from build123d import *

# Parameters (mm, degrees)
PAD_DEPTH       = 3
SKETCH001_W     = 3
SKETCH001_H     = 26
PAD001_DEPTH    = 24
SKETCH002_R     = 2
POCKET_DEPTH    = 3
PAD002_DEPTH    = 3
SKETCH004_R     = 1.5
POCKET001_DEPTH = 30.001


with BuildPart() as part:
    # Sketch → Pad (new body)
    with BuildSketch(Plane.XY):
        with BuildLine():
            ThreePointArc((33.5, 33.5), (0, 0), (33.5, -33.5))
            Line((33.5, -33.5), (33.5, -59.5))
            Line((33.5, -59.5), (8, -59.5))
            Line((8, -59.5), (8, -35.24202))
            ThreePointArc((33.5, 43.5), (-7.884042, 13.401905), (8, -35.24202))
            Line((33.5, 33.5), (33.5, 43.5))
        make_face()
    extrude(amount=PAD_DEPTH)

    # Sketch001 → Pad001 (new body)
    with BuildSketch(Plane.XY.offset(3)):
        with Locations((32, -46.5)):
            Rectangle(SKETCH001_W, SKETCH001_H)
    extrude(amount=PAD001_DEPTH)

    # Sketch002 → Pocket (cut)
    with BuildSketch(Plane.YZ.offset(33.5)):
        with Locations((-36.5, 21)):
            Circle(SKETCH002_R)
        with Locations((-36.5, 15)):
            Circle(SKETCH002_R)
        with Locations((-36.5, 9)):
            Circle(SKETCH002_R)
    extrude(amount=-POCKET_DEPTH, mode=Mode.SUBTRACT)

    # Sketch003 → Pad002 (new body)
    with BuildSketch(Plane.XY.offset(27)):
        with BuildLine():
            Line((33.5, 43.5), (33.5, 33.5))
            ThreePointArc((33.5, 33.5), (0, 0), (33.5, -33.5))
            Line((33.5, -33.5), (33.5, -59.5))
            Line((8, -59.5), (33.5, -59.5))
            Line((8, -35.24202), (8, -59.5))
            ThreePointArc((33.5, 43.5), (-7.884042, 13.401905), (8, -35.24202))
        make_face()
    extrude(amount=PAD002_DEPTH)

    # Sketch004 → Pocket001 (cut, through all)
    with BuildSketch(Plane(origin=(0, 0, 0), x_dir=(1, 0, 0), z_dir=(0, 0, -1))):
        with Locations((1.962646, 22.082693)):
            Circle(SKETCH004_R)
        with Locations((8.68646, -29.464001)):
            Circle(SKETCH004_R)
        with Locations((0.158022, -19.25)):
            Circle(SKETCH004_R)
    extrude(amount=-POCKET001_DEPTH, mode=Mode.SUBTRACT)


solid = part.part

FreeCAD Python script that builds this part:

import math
import FreeCAD as App
import Part
import Sketcher

V = App.Vector

doc = App.newDocument("Part")
body = doc.addObject("PartDesign::Body", "Body")

# Sketch on XY plane
sketch1 = body.newObject("Sketcher::SketchObject", "Sketch")
sketch1.AttachmentSupport = (doc.getObject("XY_Plane"), [""])
sketch1.MapMode = "FlatFace"
sketch1.addGeometry(Part.ArcOfCircle(Part.Circle(V(34, 0, 0), V(0, 0, 1), 34), math.radians(90), math.radians(270)), False)
sketch1.addGeometry(Part.LineSegment(V(34, 34, 0), V(34, 44, 0)), False)
sketch1.addGeometry(Part.ArcOfCircle(Part.Circle(V(34, 0, 0), V(0, 0, 1), 43), math.radians(90), math.radians(234)), False)
sketch1.addGeometry(Part.LineSegment(V(8, -35, 0), V(8, -60, 0)), False)
sketch1.addGeometry(Part.LineSegment(V(8, -60, 0), V(34, -60, 0)), False)
sketch1.addGeometry(Part.LineSegment(V(34, -60, 0), V(34, -34, 0)), False)
sketch1.addConstraint(Sketcher.Constraint("Coincident", 0, 1, 1, 1))
sketch1.addConstraint(Sketcher.Constraint("Coincident", 1, 2, 2, 1))
sketch1.addConstraint(Sketcher.Constraint("Coincident", 2, 2, 3, 1))
sketch1.addConstraint(Sketcher.Constraint("Coincident", 3, 2, 4, 1))
sketch1.addConstraint(Sketcher.Constraint("Coincident", 4, 2, 5, 1))
sketch1.addConstraint(Sketcher.Constraint("Coincident", 5, 2, 0, 2))
sketch1.addConstraint(Sketcher.Constraint("Vertical", 1))
sketch1.addConstraint(Sketcher.Constraint("Vertical", 3))
sketch1.addConstraint(Sketcher.Constraint("Horizontal", 4))
sketch1.addConstraint(Sketcher.Constraint("Vertical", 5))
sketch1.addConstraint(Sketcher.Constraint("Coincident", 2, 3, 0, 3))
sketch1.addConstraint(Sketcher.Constraint("Symmetric", 0, 1, 5, 2, -1))
sketch1.addConstraint(Sketcher.Constraint("Vertical", 2, 3, 0, 1))
sketch1.addConstraint(Sketcher.Constraint("Radius", 0, 33.5))
sketch1.addConstraint(Sketcher.Constraint("Radius", 2, 43.5))
sketch1.addConstraint(Sketcher.Constraint("DistanceY", 5, 1, 5, 2, 26.0))
sketch1.addConstraint(Sketcher.Constraint("DistanceX", 4, 1, 4, 2, 25.5))
sketch1.addConstraint(Sketcher.Constraint("DistanceX", -1, 1, 2, 2, 8.0))
pad1 = body.newObject("PartDesign::Pad", "Pad")
pad1.Profile = sketch1
pad1.Length = 3

# Sketch on XY plane
sketch2 = body.newObject("Sketcher::SketchObject", "Sketch001")
sketch2.AttachmentSupport = (doc.getObject("XY_Plane"), [""])
sketch2.MapMode = "FlatFace"
sketch2.AttachmentOffset = App.Placement(V(0, 0, 3), App.Rotation())
sketch2.addGeometry(Part.LineSegment(V(30.5, -33.5, 0), V(30.5, -59.5, 0)), False)
sketch2.addGeometry(Part.LineSegment(V(30.5, -59.5, 0), V(33.5, -59.5, 0)), False)
sketch2.addGeometry(Part.LineSegment(V(33.5, -59.5, 0), V(33.5, -33.5, 0)), False)
sketch2.addGeometry(Part.LineSegment(V(33.5, -33.5, 0), V(30.5, -33.5, 0)), False)
sketch2.addConstraint(Sketcher.Constraint("Coincident", 0, 2, 1, 1))
sketch2.addConstraint(Sketcher.Constraint("Coincident", 1, 2, 2, 1))
sketch2.addConstraint(Sketcher.Constraint("Coincident", 2, 2, 3, 1))
sketch2.addConstraint(Sketcher.Constraint("Coincident", 3, 2, 0, 1))
sketch2.addConstraint(Sketcher.Constraint("Vertical", 0))
sketch2.addConstraint(Sketcher.Constraint("Horizontal", 1))
sketch2.addConstraint(Sketcher.Constraint("Vertical", 2))
sketch2.addConstraint(Sketcher.Constraint("Horizontal", 3))
sketch2.addConstraint(Sketcher.Constraint("DistanceX", 1, 1, 1, 2, 3.0))
sketch2.addConstraint(Sketcher.Constraint("DistanceY", 0, 2, 0, 1, 26.0))
sketch2.addConstraint(Sketcher.Constraint("DistanceX", -1, 1, 0, 2, 30.5))
sketch2.addConstraint(Sketcher.Constraint("DistanceY", 0, 2, -1, 1, 59.5))
pad2 = body.newObject("PartDesign::Pad", "Pad001")
pad2.Profile = sketch2
pad2.Length = 24

# Sketch on YZ plane
sketch3 = body.newObject("Sketcher::SketchObject", "Sketch002")
sketch3.AttachmentSupport = (doc.getObject("YZ_Plane"), [""])
sketch3.MapMode = "FlatFace"
sketch3.AttachmentOffset = App.Placement(V(0, 0, 33.5), App.Rotation())
sketch3.addGeometry(Part.Circle(V(-36.5, 21, 0), V(0, 0, 1), 2), False)
sketch3.addGeometry(Part.Circle(V(-36.5, 15, 0), V(0, 0, 1), 2), False)
sketch3.addGeometry(Part.Circle(V(-36.5, 9, 0), V(0, 0, 1), 2), False)
sketch3.addConstraint(Sketcher.Constraint("Equal", 0, 1))
sketch3.addConstraint(Sketcher.Constraint("Equal", 1, 2))
sketch3.addConstraint(Sketcher.Constraint("Vertical", 0, 3, 1, 3))
sketch3.addConstraint(Sketcher.Constraint("Vertical", 1, 3, 2, 3))
sketch3.addConstraint(Sketcher.Constraint("Diameter", 0, 4.0))
sketch3.addConstraint(Sketcher.Constraint("DistanceY", -1, 1, 0, 3, 21.0))
sketch3.addConstraint(Sketcher.Constraint("DistanceY", -1, 1, 1, 3, 15.0))
sketch3.addConstraint(Sketcher.Constraint("DistanceY", -1, 1, 2, 3, 9.0))
sketch3.addConstraint(Sketcher.Constraint("DistanceX", 0, 3, -1, 1, 36.5))
pocket1 = body.newObject("PartDesign::Pocket", "Pocket")
pocket1.Profile = sketch3
pocket1.Length = 3

# Sketch on XY plane
sketch4 = body.newObject("Sketcher::SketchObject", "Sketch003")
sketch4.AttachmentSupport = (doc.getObject("XY_Plane"), [""])
sketch4.MapMode = "FlatFace"
sketch4.AttachmentOffset = App.Placement(V(0, 0, 27), App.Rotation())
sketch4.addGeometry(Part.LineSegment(V(34, 34, 0), V(34, 44, 0)), False)
sketch4.addGeometry(Part.ArcOfCircle(Part.Circle(V(34, 0, 0), V(0, 0, 1), 43), math.radians(90), math.radians(234)), False)
sketch4.addGeometry(Part.LineSegment(V(8, -35, 0), V(8, -60, 0)), False)
sketch4.addGeometry(Part.LineSegment(V(8, -60, 0), V(34, -60, 0)), False)
sketch4.addGeometry(Part.LineSegment(V(34, -60, 0), V(34, -34, 0)), False)
sketch4.addGeometry(Part.ArcOfCircle(Part.Circle(V(34, 0, 0), V(0, 0, 1), 34), math.radians(90), math.radians(270)), False)
sketch4.addConstraint(Sketcher.Constraint("Coincident", 0, 2, 1, 1))
sketch4.addConstraint(Sketcher.Constraint("Coincident", 1, 2, 2, 1))
sketch4.addConstraint(Sketcher.Constraint("Coincident", 2, 2, 3, 1))
sketch4.addConstraint(Sketcher.Constraint("Coincident", 3, 2, 4, 1))
sketch4.addConstraint(Sketcher.Constraint("Coincident", 4, 2, 5, 2))
sketch4.addConstraint(Sketcher.Constraint("Coincident", 5, 1, 0, 1))
sketch4.addConstraint(Sketcher.Constraint("Vertical", 0))
sketch4.addConstraint(Sketcher.Constraint("Vertical", 2))
sketch4.addConstraint(Sketcher.Constraint("Horizontal", 3))
sketch4.addConstraint(Sketcher.Constraint("Vertical", 4))
sketch4.addConstraint(Sketcher.Constraint("Coincident", 5, 3, 1, 3))
sketch4.addConstraint(Sketcher.Constraint("Symmetric", 4, 2, 5, 1, -1))
sketch4.addConstraint(Sketcher.Constraint("Vertical", 5, 3, 0, 2))
sketch4.addConstraint(Sketcher.Constraint("Radius", 1, 43.5))
sketch4.addConstraint(Sketcher.Constraint("Radius", 5, 33.5))
sketch4.addConstraint(Sketcher.Constraint("DistanceY", 4, 1, 4, 2, 26.0))
sketch4.addConstraint(Sketcher.Constraint("DistanceX", 3, 1, 3, 2, 25.5))
sketch4.addConstraint(Sketcher.Constraint("DistanceX", -1, 1, 1, 2, 8.0))
pad3 = body.newObject("PartDesign::Pad", "Pad002")
pad3.Profile = sketch4
pad3.Length = 3

# Sketch on XY plane
sketch5 = body.newObject("Sketcher::SketchObject", "Sketch004")
sketch5.AttachmentSupport = (doc.getObject("XY_Plane"), [""])
sketch5.MapMode = "FlatFace"
sketch5.addGeometry(Part.Circle(V(2, -22.1, 0), V(0, 0, 1), 1.5), False)
sketch5.addGeometry(Part.Circle(V(8.7, 29.5, 0), V(0, 0, 1), 1.5), False)
sketch5.addGeometry(Part.Circle(V(0.2, 19.2, 0), V(0, 0, 1), 1.5), False)
sketch5.addConstraint(Sketcher.Constraint("Equal", 0, 1))
sketch5.addConstraint(Sketcher.Constraint("Equal", 1, 2))
sketch5.addConstraint(Sketcher.Constraint("Diameter", 0, 3.0))
sketch5.addConstraint(Sketcher.Constraint("DistanceY", -1, 1, 2, 3, 19.25))
sketch5.addConstraint(Sketcher.Constraint("DistanceY", -1, 1, 1, 3, 29.464001))
sketch5.addConstraint(Sketcher.Constraint("DistanceX", -1, 1, 1, 3, 8.68646))
sketch5.addConstraint(Sketcher.Constraint("DistanceX", -1, 1, 0, 3, 1.962646))
sketch5.addConstraint(Sketcher.Constraint("DistanceY", 0, 3, -1, 1, 22.082693))
sketch5.addConstraint(Sketcher.Constraint("DistanceX", -1, 1, 2, 3, 0.158022))
pocket2 = body.newObject("PartDesign::Pocket", "Pocket001")
pocket2.Profile = sketch5
pocket2.Type = "ThroughAll"
pocket2.Reversed = True

doc.recompute()
